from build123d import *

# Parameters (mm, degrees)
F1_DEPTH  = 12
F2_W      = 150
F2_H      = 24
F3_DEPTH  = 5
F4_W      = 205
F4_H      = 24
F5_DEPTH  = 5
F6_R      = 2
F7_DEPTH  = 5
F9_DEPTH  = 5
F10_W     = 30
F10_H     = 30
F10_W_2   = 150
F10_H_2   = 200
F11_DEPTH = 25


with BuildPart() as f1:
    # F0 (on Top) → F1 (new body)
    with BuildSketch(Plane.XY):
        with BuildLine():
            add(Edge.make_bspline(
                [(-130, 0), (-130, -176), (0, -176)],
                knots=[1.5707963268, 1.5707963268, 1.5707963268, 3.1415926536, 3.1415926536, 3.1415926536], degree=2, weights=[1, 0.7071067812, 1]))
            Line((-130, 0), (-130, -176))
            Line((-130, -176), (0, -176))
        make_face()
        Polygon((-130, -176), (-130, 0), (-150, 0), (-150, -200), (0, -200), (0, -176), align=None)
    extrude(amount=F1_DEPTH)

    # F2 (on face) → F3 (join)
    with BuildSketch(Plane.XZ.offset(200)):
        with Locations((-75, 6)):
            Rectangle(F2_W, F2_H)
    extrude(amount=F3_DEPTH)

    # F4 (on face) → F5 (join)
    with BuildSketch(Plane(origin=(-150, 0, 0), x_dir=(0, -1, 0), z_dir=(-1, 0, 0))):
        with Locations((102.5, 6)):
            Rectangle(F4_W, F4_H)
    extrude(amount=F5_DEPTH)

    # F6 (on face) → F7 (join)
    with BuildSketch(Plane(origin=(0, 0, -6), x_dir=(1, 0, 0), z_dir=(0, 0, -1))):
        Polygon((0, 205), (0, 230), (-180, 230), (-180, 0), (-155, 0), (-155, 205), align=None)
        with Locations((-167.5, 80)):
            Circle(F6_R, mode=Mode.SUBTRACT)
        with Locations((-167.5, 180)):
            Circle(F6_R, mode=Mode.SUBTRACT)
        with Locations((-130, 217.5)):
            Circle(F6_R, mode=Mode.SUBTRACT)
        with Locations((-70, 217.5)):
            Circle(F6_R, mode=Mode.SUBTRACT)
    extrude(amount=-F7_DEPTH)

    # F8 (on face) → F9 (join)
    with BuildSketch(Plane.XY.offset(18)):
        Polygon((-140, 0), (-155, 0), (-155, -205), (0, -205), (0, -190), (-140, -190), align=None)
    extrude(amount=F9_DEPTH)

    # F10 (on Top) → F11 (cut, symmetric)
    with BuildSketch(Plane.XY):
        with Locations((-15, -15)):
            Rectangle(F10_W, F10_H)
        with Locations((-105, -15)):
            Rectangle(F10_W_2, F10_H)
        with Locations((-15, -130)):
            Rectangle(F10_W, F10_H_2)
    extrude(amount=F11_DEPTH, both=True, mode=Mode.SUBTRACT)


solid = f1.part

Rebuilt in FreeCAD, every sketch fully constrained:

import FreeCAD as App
import Part
import Sketcher
Q = App.Units.Quantity


def add_polygon(sketch, points):
    """Adds a closed chain of lines whose ends are joined by coincident constraints."""
    first, n = sketch.GeometryCount, len(points)
    for a, b in zip(points, points[1:] + points[:1]):
        sketch.addGeometry(Part.LineSegment(App.Vector(*a, 0), App.Vector(*b, 0)), False)
    for i in range(n):
        sketch.addConstraint(Sketcher.Constraint("Coincident", first + i, 2, first + (i + 1) % n, 1))

doc = App.newDocument("Part")
params = doc.addObject("Spreadsheet::Sheet", "Params")
for row, (alias, value) in enumerate([
    ("sketch1_width", "20 mm"),
    ("sketch1_height", "200 mm"),
    ("pad1_length", "12 mm"),
    ("sketch2_width", "150 mm"),
    ("sketch2_height", "24 mm"),
    ("pad2_length", "5 mm"),
    ("sketch3_width", "205 mm"),
    ("sketch3_height", "24 mm"),
    ("pad3_length", "5 mm"),
    ("sketch4_diameter", "4 mm"),
    ("sketch4_width", "180 mm"),
    ("sketch4_width2", "25 mm"),
    ("sketch4_height", "230 mm"),
    ("pad4_length", "5 mm"),
    ("sketch5_width", "15 mm"),
    ("sketch5_width2", "155 mm"),
    ("sketch5_height", "205 mm"),
    ("pad5_length", "5 mm"),
    ("sketch6_width", "180 mm"),
    ("sketch6_width2", "150 mm"),
    ("sketch6_height", "200 mm"),
    ("pocket1_length", "50 mm"),
], start=1):
    params.set(f"A{row}", alias)
    params.set(f"B{row}", "=" + value)
    params.setAlias(f"B{row}", alias)

body = doc.addObject("PartDesign::Body", "Body")

sketch1 = body.newObject("Sketcher::SketchObject", "Sketch")
sketch1.AttachmentSupport = (doc.getObject("XY_Plane"), [""])
sketch1.MapMode = "FlatFace"
sketch1.addGeometry([
    Part.BSplineCurve([App.Vector(-130, 0, 0), App.Vector(-130, -176, 0), App.Vector(0, -176, 0)], [3, 3], [1.570796327, 3.141592654], False, 2, [1, 0.707106781, 1], False),
    Part.LineSegment(App.Vector(-130, 0, 0), App.Vector(-150, 0, 0)),
    Part.LineSegment(App.Vector(-150, 0, 0), App.Vector(-150, -200, 0)),
    Part.LineSegment(App.Vector(-150, -200, 0), App.Vector(0, -200, 0)),
    Part.LineSegment(App.Vector(0, -200, 0), App.Vector(0, -176, 0)),
], False)
sketch1.addConstraint([
    Sketcher.Constraint("Block", 0),
    Sketcher.Constraint("Coincident", 0, 1, 1, 1),
    Sketcher.Constraint("Coincident", 1, 2, 2, 1),
    Sketcher.Constraint("Coincident", 2, 2, 3, 1),
    Sketcher.Constraint("Coincident", 3, 2, 4, 1),
    Sketcher.Constraint("Coincident", 4, 2, 0, 2),
    Sketcher.Constraint("Horizontal", 1),
    Sketcher.Constraint("Vertical", 2),
    Sketcher.Constraint("Horizontal", 3),
    Sketcher.Constraint("Vertical", 4),
    Sketcher.Constraint("DistanceX", 1, 2, 1, 1, Q("20 mm")),
    Sketcher.Constraint("DistanceY", 2, 2, 2, 1, Q("200 mm")),
])
sketch1.setExpression("Constraints[10]", "Params.sketch1_width")
sketch1.setExpression("Constraints[11]", "Params.sketch1_height")
pad1 = body.newObject("PartDesign::Pad", "Pad")
pad1.Profile = sketch1
pad1.setExpression("Length", "Params.pad1_length")

sketch2 = body.newObject("Sketcher::SketchObject", "Sketch001")
sketch2.AttachmentSupport = (doc.getObject("XZ_Plane"), [""])
sketch2.MapMode = "FlatFace"
sketch2.AttachmentOffset = App.Placement(App.Vector(0, 0, 200), App.Rotation())
add_polygon(sketch2, [(-150, 18), (-150, -6), (0, -6), (0, 18)])
sketch2.addConstraint([
    Sketcher.Constraint("Vertical", 0),
    Sketcher.Constraint("Horizontal", 1),
    Sketcher.Constraint("Vertical", 2),
    Sketcher.Constraint("Horizontal", 3),
    Sketcher.Constraint("PointOnObject", 1, 2, -2),
    Sketcher.Constraint("DistanceX", 1, 1, 1, 2, Q("150 mm")),
    Sketcher.Constraint("DistanceY", 0, 2, 0, 1, Q("24 mm")),
    Sketcher.Constraint("DistanceY", 0, 2, -1, 1, Q("6 mm")),
])
sketch2.setExpression("Constraints[9]", "Params.sketch2_width")
sketch2.setExpression("Constraints[10]", "Params.sketch2_height")
pad2 = body.newObject("PartDesign::Pad", "Pad001")
pad2.Profile = sketch2
pad2.setExpression("Length", "Params.pad2_length")

sketch3 = body.newObject("Sketcher::SketchObject", "Sketch002")
sketch3.AttachmentSupport = (doc.getObject("YZ_Plane"), [""])
sketch3.MapMode = "FlatFace"
sketch3.AttachmentOffset = App.Placement(App.Vector(0, 0, -150), App.Rotation())
add_polygon(sketch3, [(0, 18), (0, -6), (-205, -6), (-205, 18)])
sketch3.addConstraint([
    Sketcher.Constraint("Vertical", 0),
    Sketcher.Constraint("Horizontal", 1),
    Sketcher.Constraint("Vertical", 2),
    Sketcher.Constraint("Horizontal", 3),
    Sketcher.Constraint("PointOnObject", 0, 2, -2),
    Sketcher.Constraint("DistanceX", 1, 2, 1, 1, Q("205 mm")),
    Sketcher.Constraint("DistanceY", 0, 2, 0, 1, Q("24 mm")),
    Sketcher.Constraint("DistanceY", 0, 2, -1, 1, Q("6 mm")),
])
sketch3.setExpression("Constraints[9]", "Params.sketch3_width")
sketch3.setExpression("Constraints[10]", "Params.sketch3_height")
pad3 = body.newObject("PartDesign::Pad", "Pad002")
pad3.Profile = sketch3
pad3.setExpression("Length", "Params.pad3_length")
pad3.Reversed = True

sketch4 = body.newObject("Sketcher::SketchObject", "Sketch003")
sketch4.AttachmentSupport = (doc.getObject("XY_Plane"), [""])
sketch4.MapMode = "FlatFace"
sketch4.AttachmentOffset = App.Placement(App.Vector(0, 0, -6), App.Rotation())
add_polygon(sketch4, [(0, -205), (0, -230), (-180, -230), (-180, 0), (-155, 0), (-155, -205)])
sketch4.addGeometry(Part.Circle(App.Vector(-167.5, -80, 0), App.Vector(0, 0, 1), 2), False)
sketch4.addGeometry(Part.Circle(App.Vector(-167.5, -180, 0), App.Vector(0, 0, 1), 2), False)
sketch4.addGeometry(Part.Circle(App.Vector(-130, -217.5, 0), App.Vector(0, 0, 1), 2), False)
sketch4.addGeometry(Part.Circle(App.Vector(-70, -217.5, 0), App.Vector(0, 0, 1), 2), False)
sketch4.addConstraint([
    Sketcher.Constraint("Vertical", 0),
    Sketcher.Constraint("Horizontal", 1),
    Sketcher.Constraint("Vertical", 2),
    Sketcher.Constraint("Horizontal", 3),
    Sketcher.Constraint("Vertical", 4),
    Sketcher.Constraint("Horizontal", 5),
    Sketcher.Constraint("Equal", 6, 7),
    Sketcher.Constraint("Equal", 7, 8),
    Sketcher.Constraint("Equal", 8, 9),
    Sketcher.Constraint("PointOnObject", 0, 2, -2),
    Sketcher.Constraint("PointOnObject", 2, 2, -1),
    Sketcher.Constraint("Horizontal", 8, 3, 9, 3),
    Sketcher.Constraint("Vertical", 6, 3, 7, 3),
    Sketcher.Constraint("Equal", 3, 0),
    Sketcher.Constraint("Diameter", 6, Q("4 mm")),
    Sketcher.Constraint("DistanceX", 1, 2, 1, 1, Q("180 mm")),
    Sketcher.Constraint("DistanceX", 3, 1, 3, 2, Q("25 mm")),
    Sketcher.Constraint("DistanceY", 2, 1, 2, 2, Q("230 mm")),
    Sketcher.Constraint("DistanceY", 6, 3, -1, 1, Q("80 mm")),
    Sketcher.Constraint("DistanceY", 7, 3, -1, 1, Q("180 mm")),
    Sketcher.Constraint("DistanceX", 8, 3, -1, 1, Q("130 mm")),
    Sketcher.Constraint("DistanceX", 9, 3, -1, 1, Q("70 mm")),
    Sketcher.Constraint("DistanceX", 6, 3, -1, 1, Q("167.5 mm")),
    Sketcher.Constraint("DistanceY", 8, 3, -1, 1, Q("217.5 mm")),
])
sketch4.setExpression("Constraints[20]", "Params.sketch4_diameter")
sketch4.setExpression("Constraints[21]", "Params.sketch4_width")
sketch4.setExpression("Constraints[22]", "Params.sketch4_width2")
sketch4.setExpression("Constraints[23]", "Params.sketch4_height")
pad4 = body.newObject("PartDesign::Pad", "Pad003")
pad4.Profile = sketch4
pad4.setExpression("Length", "Params.pad4_length")

sketch5 = body.newObject("Sketcher::SketchObject", "Sketch004")
sketch5.AttachmentSupport = (doc.getObject("XY_Plane"), [""])
sketch5.MapMode = "FlatFace"
sketch5.AttachmentOffset = App.Placement(App.Vector(0, 0, 18), App.Rotation())
add_polygon(sketch5, [(-140, 0), (-155, 0), (-155, -205), (0, -205), (0, -190), (-140, -190)])
sketch5.addConstraint([
    Sketcher.Constraint("Horizontal", 0),
    Sketcher.Constraint("Vertical", 1),
    Sketcher.Constraint("Horizontal", 2),
    Sketcher.Constraint("Vertical", 3),
    Sketcher.Constraint("Horizontal", 4),
    Sketcher.Constraint("Vertical", 5),
    Sketcher.Constraint("PointOnObject", 0, 2, -1),
    Sketcher.Constraint("PointOnObject", 2, 2, -2),
    Sketcher.Constraint("Equal", 0, 3),
    Sketcher.Constraint("DistanceX", 0, 2, 0, 1, Q("15 mm")),
    Sketcher.Constraint("DistanceX", 2, 1, 2, 2, Q("155 mm")),
    Sketcher.Constraint("DistanceY", 1, 2, 1, 1, Q("205 mm")),
])
sketch5.setExpression("Constraints[15]", "Params.sketch5_width")
sketch5.setExpression("Constraints[16]", "Params.sketch5_width2")
sketch5.setExpression("Constraints[17]", "Params.sketch5_height")
pad5 = body.newObject("PartDesign::Pad", "Pad004")
pad5.Profile = sketch5
pad5.setExpression("Length", "Params.pad5_length")

sketch6 = body.newObject("Sketcher::SketchObject", "Sketch005")
sketch6.AttachmentSupport = (doc.getObject("XY_Plane"), [""])
sketch6.MapMode = "FlatFace"
add_polygon(sketch6, [(0, 0), (-180, 0), (-180, -30), (-30, -30), (-30, -230), (0, -230)])
sketch6.addConstraint([
    Sketcher.Constraint("Horizontal", 0),
    Sketcher.Constraint("Vertical", 1),
    Sketcher.Constraint("Horizontal", 2),
    Sketcher.Constraint("Vertical", 3),
    Sketcher.Constraint("Horizontal", 4),
    Sketcher.Constraint("Vertical", 5),
    Sketcher.Constraint("Coincident", 5, 2, -1, 1),
    Sketcher.Constraint("Equal", 4, 1),
    Sketcher.Constraint("DistanceX", 0, 2, 0, 1, Q("180 mm")),
    Sketcher.Constraint("DistanceX", 2, 1, 2, 2, Q("150 mm")),
    Sketcher.Constraint("DistanceY", 3, 2, 3, 1, Q("200 mm")),
])
sketch6.setExpression("Constraints[14]", "Params.sketch6_width")
sketch6.setExpression("Constraints[15]", "Params.sketch6_width2")
sketch6.setExpression("Constraints[16]", "Params.sketch6_height")
pocket1 = body.newObject("PartDesign::Pocket", "Pocket")
pocket1.Profile = sketch6
pocket1.setExpression("Length", "Params.pocket1_length")
pocket1.Midplane = True

doc.recompute()
